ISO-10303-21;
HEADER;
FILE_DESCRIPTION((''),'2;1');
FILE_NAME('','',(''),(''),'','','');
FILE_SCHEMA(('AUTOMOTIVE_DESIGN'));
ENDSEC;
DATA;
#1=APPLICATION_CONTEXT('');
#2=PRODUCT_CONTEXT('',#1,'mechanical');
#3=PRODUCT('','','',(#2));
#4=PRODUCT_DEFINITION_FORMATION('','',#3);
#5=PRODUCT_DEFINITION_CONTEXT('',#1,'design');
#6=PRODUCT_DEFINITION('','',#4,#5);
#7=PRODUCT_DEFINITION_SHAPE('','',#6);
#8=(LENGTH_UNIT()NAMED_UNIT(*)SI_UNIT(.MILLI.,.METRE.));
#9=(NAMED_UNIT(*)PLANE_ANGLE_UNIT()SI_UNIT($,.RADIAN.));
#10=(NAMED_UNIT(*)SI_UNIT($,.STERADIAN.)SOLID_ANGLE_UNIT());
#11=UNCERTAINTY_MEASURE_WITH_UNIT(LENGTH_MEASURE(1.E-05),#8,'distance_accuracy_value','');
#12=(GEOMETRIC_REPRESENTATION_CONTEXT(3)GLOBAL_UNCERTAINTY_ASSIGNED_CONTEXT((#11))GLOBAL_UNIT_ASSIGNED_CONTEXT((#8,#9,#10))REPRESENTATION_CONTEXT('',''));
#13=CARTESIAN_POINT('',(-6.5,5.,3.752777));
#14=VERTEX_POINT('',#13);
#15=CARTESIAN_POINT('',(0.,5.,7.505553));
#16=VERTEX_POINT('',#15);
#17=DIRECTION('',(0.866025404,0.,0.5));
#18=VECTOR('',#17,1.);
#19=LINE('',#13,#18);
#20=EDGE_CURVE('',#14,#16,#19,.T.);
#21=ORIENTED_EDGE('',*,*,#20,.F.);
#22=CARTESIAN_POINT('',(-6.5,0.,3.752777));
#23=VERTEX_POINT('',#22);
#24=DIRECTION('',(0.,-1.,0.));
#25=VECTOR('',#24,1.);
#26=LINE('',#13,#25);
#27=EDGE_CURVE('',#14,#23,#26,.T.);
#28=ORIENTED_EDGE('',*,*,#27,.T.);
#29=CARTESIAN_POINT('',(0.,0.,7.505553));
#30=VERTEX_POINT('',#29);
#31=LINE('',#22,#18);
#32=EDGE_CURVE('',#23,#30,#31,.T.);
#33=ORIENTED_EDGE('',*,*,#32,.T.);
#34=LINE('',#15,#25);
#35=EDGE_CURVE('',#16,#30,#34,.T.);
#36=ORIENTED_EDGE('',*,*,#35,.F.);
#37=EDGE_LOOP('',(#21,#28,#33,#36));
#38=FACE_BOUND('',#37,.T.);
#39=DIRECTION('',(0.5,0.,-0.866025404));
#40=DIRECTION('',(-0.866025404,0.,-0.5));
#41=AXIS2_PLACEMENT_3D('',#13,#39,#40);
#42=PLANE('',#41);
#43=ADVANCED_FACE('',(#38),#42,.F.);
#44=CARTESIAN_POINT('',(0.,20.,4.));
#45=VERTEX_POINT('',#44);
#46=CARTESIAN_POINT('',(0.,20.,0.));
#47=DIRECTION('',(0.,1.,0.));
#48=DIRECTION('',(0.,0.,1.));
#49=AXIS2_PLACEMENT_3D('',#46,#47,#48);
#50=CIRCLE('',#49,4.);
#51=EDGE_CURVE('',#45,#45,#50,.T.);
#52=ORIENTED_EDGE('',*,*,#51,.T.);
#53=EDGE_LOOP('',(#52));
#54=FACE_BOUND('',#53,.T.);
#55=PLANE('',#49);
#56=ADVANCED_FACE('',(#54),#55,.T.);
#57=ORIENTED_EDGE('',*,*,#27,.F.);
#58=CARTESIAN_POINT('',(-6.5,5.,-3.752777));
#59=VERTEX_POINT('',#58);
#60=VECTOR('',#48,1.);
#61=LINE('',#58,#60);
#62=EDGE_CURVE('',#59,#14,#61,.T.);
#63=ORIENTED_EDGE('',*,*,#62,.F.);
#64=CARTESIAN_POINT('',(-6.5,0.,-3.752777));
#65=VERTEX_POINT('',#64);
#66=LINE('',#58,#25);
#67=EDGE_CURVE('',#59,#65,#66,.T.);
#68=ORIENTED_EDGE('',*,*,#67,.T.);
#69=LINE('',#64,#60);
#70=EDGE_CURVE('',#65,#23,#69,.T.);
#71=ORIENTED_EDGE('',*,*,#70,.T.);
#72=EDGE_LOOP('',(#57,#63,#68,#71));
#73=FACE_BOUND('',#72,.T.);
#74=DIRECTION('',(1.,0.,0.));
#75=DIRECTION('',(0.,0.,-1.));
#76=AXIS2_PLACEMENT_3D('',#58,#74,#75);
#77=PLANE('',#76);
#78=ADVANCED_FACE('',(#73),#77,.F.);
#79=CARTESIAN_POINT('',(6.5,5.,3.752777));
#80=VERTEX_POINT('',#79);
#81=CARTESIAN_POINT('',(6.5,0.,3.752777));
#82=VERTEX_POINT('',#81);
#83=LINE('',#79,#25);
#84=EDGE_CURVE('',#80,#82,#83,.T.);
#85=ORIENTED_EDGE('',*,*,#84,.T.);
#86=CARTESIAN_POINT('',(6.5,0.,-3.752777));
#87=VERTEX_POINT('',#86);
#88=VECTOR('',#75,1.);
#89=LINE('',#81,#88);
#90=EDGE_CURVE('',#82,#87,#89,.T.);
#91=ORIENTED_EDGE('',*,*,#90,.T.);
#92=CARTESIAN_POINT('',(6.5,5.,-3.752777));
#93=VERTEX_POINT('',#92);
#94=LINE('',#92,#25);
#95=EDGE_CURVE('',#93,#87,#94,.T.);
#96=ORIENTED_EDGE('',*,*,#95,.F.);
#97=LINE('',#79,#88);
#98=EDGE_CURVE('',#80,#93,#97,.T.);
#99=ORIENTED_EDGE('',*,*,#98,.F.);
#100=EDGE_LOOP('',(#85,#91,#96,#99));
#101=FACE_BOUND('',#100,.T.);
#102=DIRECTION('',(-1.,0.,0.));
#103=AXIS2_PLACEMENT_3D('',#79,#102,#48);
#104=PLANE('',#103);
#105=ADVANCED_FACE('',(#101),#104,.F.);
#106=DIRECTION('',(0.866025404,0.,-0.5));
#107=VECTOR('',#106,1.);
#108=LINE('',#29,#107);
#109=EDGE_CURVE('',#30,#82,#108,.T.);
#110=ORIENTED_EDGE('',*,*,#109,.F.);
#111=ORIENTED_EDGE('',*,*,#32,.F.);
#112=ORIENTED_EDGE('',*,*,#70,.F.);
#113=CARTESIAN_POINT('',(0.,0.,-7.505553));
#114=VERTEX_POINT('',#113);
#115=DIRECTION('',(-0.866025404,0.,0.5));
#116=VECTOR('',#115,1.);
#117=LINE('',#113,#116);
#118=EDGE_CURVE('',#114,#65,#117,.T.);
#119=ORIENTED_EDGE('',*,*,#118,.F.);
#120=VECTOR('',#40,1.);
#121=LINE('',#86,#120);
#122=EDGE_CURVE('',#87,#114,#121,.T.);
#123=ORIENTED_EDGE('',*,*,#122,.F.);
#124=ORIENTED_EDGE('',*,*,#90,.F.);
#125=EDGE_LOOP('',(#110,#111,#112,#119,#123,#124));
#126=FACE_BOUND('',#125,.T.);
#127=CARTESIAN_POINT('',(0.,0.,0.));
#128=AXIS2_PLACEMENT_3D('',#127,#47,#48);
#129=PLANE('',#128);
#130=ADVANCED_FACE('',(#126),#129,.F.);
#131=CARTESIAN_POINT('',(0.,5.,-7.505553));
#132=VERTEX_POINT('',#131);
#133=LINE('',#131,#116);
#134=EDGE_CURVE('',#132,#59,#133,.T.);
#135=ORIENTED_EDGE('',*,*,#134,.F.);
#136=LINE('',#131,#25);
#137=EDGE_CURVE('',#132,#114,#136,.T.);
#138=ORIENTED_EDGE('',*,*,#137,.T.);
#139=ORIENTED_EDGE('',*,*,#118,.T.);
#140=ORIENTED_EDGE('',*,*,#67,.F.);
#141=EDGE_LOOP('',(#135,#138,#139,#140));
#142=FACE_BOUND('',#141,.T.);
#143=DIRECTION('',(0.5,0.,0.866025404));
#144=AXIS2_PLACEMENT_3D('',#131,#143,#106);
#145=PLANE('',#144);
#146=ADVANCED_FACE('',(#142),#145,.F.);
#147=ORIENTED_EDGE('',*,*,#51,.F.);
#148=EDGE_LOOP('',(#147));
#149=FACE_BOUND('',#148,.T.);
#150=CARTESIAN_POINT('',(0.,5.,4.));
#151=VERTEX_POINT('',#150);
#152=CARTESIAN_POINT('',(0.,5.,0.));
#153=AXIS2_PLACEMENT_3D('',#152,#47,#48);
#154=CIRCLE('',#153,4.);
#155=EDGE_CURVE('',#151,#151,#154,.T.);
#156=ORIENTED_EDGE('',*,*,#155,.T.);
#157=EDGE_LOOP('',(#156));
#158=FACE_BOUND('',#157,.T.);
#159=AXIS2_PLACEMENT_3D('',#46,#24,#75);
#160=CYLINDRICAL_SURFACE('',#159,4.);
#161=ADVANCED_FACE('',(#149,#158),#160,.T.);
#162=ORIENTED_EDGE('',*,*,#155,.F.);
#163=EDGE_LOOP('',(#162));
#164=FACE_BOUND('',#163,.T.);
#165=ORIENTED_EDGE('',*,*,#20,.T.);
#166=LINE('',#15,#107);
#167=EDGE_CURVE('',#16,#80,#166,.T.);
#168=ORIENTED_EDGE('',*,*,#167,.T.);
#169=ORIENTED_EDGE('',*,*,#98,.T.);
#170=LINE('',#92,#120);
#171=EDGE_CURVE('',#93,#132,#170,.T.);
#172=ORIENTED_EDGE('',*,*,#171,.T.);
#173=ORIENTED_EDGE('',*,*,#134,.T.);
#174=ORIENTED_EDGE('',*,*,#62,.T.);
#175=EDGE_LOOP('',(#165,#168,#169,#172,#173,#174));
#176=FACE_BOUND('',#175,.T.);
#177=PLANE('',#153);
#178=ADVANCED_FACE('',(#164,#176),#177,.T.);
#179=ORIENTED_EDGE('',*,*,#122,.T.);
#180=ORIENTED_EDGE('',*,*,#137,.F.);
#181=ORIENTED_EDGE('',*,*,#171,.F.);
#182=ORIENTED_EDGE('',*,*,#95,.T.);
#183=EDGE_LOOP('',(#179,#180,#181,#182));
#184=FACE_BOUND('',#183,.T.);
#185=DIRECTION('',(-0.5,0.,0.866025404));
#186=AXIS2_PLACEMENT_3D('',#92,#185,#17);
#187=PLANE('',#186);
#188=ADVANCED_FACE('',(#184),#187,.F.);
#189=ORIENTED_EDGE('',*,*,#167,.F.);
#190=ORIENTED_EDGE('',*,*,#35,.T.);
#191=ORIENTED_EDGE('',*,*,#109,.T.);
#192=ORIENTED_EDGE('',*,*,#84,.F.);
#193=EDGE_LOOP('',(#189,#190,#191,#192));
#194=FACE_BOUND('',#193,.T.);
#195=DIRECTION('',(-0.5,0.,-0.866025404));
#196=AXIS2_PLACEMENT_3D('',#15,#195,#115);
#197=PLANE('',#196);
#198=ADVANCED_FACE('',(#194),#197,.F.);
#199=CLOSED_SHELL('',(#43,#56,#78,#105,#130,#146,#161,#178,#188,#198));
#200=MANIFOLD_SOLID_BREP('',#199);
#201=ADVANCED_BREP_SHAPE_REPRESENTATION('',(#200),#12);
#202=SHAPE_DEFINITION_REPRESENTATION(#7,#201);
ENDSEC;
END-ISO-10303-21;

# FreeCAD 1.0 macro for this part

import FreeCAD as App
import Part
import Sketcher
from FreeCAD import Vector
Q = App.Units.Quantity

doc = App.newDocument("Part")
params = doc.addObject("Spreadsheet::Sheet", "Params")
for row, (alias, value) in enumerate([
    ("pad1_length", "5 mm"),
    ("sketch2_diameter", "8 mm"),
    ("pad2_length", "15 mm"),
], start=1):
    params.set(f"A{row}", alias)
    params.set(f"B{row}", "=" + value)
    params.setAlias(f"B{row}", alias)

body = doc.addObject("PartDesign::Body", "Body")

# Sketch on XZ plane
sketch1 = body.newObject("Sketcher::SketchObject", "Sketch")
sketch1.AttachmentSupport = (doc.getObject("XZ_Plane"), [""])
sketch1.MapMode = "FlatFace"
sketch1.addGeometry([
    Part.LineSegment(Vector(0, -7.505553, 0), Vector(-6.5, -3.752777, 0)),  # 0
    Part.LineSegment(Vector(-6.5, -3.752777, 0), Vector(-6.5, 3.752777, 0)),  # 1
    Part.LineSegment(Vector(-6.5, 3.752777, 0), Vector(0, 7.505553, 0)),  # 2
    Part.LineSegment(Vector(0, 7.505553, 0), Vector(6.5, 3.752777, 0)),  # 3
    Part.LineSegment(Vector(6.5, 3.752777, 0), Vector(6.5, -3.752777, 0)),  # 4
    Part.LineSegment(Vector(6.5, -3.752777, 0), Vector(0, -7.505553, 0)),  # 5
], False)
sketch1.addConstraint([
    Sketcher.Constraint("Coincident", 0, 2, 1, 1),
    Sketcher.Constraint("Coincident", 1, 2, 2, 1),
    Sketcher.Constraint("Coincident", 2, 2, 3, 1),
    Sketcher.Constraint("Coincident", 3, 2, 4, 1),
    Sketcher.Constraint("Coincident", 4, 2, 5, 1),
    Sketcher.Constraint("Coincident", 5, 2, 0, 1),
    Sketcher.Constraint("Vertical", 1),
    Sketcher.Constraint("Vertical", 4),
    Sketcher.Constraint("Symmetric", 0, 2, 3, 2, -1, 1),
    Sketcher.Constraint("Symmetric", 2, 2, 5, 2, -1, 1),
    Sketcher.Constraint("PointOnObject", 2, 2, -2),
    Sketcher.Constraint("Parallel", 2, 5),
    Sketcher.Constraint("Horizontal", 1, 2, 3, 2),
    Sketcher.Constraint("Angle", 0, Q("150 deg")),
    Sketcher.Constraint("DistanceX", 1, 2, 3, 2, Q("13 mm")),
    Sketcher.Constraint("DistanceY", 1, 1, 1, 2, Q("7.505554 mm")),
])
pad1 = body.newObject("PartDesign::Pad", "Pad")
pad1.Profile = sketch1
pad1.setExpression("Length", "Params.pad1_length")
pad1.Reversed = True

# Sketch on XZ plane
sketch2 = body.newObject("Sketcher::SketchObject", "Sketch001")
sketch2.AttachmentSupport = (doc.getObject("XZ_Plane"), [""])
sketch2.MapMode = "FlatFace"
sketch2.AttachmentOffset = App.Placement(Vector(0, 0, -5), App.Rotation())
sketch2.addGeometry(Part.Circle(Vector(0, 0, 0), Vector(0, 0, 1), 4), False)
sketch2.addConstraint([
    Sketcher.Constraint("Coincident", 0, 3, -1, 1),
    Sketcher.Constraint("Diameter", 0, Q("8 mm")),
])
sketch2.setExpression("Constraints[1]", "Params.sketch2_diameter")
pad2 = body.newObject("PartDesign::Pad", "Pad001")
pad2.Profile = sketch2
pad2.setExpression("Length", "Params.pad2_length")
pad2.Reversed = True

doc.recompute()
